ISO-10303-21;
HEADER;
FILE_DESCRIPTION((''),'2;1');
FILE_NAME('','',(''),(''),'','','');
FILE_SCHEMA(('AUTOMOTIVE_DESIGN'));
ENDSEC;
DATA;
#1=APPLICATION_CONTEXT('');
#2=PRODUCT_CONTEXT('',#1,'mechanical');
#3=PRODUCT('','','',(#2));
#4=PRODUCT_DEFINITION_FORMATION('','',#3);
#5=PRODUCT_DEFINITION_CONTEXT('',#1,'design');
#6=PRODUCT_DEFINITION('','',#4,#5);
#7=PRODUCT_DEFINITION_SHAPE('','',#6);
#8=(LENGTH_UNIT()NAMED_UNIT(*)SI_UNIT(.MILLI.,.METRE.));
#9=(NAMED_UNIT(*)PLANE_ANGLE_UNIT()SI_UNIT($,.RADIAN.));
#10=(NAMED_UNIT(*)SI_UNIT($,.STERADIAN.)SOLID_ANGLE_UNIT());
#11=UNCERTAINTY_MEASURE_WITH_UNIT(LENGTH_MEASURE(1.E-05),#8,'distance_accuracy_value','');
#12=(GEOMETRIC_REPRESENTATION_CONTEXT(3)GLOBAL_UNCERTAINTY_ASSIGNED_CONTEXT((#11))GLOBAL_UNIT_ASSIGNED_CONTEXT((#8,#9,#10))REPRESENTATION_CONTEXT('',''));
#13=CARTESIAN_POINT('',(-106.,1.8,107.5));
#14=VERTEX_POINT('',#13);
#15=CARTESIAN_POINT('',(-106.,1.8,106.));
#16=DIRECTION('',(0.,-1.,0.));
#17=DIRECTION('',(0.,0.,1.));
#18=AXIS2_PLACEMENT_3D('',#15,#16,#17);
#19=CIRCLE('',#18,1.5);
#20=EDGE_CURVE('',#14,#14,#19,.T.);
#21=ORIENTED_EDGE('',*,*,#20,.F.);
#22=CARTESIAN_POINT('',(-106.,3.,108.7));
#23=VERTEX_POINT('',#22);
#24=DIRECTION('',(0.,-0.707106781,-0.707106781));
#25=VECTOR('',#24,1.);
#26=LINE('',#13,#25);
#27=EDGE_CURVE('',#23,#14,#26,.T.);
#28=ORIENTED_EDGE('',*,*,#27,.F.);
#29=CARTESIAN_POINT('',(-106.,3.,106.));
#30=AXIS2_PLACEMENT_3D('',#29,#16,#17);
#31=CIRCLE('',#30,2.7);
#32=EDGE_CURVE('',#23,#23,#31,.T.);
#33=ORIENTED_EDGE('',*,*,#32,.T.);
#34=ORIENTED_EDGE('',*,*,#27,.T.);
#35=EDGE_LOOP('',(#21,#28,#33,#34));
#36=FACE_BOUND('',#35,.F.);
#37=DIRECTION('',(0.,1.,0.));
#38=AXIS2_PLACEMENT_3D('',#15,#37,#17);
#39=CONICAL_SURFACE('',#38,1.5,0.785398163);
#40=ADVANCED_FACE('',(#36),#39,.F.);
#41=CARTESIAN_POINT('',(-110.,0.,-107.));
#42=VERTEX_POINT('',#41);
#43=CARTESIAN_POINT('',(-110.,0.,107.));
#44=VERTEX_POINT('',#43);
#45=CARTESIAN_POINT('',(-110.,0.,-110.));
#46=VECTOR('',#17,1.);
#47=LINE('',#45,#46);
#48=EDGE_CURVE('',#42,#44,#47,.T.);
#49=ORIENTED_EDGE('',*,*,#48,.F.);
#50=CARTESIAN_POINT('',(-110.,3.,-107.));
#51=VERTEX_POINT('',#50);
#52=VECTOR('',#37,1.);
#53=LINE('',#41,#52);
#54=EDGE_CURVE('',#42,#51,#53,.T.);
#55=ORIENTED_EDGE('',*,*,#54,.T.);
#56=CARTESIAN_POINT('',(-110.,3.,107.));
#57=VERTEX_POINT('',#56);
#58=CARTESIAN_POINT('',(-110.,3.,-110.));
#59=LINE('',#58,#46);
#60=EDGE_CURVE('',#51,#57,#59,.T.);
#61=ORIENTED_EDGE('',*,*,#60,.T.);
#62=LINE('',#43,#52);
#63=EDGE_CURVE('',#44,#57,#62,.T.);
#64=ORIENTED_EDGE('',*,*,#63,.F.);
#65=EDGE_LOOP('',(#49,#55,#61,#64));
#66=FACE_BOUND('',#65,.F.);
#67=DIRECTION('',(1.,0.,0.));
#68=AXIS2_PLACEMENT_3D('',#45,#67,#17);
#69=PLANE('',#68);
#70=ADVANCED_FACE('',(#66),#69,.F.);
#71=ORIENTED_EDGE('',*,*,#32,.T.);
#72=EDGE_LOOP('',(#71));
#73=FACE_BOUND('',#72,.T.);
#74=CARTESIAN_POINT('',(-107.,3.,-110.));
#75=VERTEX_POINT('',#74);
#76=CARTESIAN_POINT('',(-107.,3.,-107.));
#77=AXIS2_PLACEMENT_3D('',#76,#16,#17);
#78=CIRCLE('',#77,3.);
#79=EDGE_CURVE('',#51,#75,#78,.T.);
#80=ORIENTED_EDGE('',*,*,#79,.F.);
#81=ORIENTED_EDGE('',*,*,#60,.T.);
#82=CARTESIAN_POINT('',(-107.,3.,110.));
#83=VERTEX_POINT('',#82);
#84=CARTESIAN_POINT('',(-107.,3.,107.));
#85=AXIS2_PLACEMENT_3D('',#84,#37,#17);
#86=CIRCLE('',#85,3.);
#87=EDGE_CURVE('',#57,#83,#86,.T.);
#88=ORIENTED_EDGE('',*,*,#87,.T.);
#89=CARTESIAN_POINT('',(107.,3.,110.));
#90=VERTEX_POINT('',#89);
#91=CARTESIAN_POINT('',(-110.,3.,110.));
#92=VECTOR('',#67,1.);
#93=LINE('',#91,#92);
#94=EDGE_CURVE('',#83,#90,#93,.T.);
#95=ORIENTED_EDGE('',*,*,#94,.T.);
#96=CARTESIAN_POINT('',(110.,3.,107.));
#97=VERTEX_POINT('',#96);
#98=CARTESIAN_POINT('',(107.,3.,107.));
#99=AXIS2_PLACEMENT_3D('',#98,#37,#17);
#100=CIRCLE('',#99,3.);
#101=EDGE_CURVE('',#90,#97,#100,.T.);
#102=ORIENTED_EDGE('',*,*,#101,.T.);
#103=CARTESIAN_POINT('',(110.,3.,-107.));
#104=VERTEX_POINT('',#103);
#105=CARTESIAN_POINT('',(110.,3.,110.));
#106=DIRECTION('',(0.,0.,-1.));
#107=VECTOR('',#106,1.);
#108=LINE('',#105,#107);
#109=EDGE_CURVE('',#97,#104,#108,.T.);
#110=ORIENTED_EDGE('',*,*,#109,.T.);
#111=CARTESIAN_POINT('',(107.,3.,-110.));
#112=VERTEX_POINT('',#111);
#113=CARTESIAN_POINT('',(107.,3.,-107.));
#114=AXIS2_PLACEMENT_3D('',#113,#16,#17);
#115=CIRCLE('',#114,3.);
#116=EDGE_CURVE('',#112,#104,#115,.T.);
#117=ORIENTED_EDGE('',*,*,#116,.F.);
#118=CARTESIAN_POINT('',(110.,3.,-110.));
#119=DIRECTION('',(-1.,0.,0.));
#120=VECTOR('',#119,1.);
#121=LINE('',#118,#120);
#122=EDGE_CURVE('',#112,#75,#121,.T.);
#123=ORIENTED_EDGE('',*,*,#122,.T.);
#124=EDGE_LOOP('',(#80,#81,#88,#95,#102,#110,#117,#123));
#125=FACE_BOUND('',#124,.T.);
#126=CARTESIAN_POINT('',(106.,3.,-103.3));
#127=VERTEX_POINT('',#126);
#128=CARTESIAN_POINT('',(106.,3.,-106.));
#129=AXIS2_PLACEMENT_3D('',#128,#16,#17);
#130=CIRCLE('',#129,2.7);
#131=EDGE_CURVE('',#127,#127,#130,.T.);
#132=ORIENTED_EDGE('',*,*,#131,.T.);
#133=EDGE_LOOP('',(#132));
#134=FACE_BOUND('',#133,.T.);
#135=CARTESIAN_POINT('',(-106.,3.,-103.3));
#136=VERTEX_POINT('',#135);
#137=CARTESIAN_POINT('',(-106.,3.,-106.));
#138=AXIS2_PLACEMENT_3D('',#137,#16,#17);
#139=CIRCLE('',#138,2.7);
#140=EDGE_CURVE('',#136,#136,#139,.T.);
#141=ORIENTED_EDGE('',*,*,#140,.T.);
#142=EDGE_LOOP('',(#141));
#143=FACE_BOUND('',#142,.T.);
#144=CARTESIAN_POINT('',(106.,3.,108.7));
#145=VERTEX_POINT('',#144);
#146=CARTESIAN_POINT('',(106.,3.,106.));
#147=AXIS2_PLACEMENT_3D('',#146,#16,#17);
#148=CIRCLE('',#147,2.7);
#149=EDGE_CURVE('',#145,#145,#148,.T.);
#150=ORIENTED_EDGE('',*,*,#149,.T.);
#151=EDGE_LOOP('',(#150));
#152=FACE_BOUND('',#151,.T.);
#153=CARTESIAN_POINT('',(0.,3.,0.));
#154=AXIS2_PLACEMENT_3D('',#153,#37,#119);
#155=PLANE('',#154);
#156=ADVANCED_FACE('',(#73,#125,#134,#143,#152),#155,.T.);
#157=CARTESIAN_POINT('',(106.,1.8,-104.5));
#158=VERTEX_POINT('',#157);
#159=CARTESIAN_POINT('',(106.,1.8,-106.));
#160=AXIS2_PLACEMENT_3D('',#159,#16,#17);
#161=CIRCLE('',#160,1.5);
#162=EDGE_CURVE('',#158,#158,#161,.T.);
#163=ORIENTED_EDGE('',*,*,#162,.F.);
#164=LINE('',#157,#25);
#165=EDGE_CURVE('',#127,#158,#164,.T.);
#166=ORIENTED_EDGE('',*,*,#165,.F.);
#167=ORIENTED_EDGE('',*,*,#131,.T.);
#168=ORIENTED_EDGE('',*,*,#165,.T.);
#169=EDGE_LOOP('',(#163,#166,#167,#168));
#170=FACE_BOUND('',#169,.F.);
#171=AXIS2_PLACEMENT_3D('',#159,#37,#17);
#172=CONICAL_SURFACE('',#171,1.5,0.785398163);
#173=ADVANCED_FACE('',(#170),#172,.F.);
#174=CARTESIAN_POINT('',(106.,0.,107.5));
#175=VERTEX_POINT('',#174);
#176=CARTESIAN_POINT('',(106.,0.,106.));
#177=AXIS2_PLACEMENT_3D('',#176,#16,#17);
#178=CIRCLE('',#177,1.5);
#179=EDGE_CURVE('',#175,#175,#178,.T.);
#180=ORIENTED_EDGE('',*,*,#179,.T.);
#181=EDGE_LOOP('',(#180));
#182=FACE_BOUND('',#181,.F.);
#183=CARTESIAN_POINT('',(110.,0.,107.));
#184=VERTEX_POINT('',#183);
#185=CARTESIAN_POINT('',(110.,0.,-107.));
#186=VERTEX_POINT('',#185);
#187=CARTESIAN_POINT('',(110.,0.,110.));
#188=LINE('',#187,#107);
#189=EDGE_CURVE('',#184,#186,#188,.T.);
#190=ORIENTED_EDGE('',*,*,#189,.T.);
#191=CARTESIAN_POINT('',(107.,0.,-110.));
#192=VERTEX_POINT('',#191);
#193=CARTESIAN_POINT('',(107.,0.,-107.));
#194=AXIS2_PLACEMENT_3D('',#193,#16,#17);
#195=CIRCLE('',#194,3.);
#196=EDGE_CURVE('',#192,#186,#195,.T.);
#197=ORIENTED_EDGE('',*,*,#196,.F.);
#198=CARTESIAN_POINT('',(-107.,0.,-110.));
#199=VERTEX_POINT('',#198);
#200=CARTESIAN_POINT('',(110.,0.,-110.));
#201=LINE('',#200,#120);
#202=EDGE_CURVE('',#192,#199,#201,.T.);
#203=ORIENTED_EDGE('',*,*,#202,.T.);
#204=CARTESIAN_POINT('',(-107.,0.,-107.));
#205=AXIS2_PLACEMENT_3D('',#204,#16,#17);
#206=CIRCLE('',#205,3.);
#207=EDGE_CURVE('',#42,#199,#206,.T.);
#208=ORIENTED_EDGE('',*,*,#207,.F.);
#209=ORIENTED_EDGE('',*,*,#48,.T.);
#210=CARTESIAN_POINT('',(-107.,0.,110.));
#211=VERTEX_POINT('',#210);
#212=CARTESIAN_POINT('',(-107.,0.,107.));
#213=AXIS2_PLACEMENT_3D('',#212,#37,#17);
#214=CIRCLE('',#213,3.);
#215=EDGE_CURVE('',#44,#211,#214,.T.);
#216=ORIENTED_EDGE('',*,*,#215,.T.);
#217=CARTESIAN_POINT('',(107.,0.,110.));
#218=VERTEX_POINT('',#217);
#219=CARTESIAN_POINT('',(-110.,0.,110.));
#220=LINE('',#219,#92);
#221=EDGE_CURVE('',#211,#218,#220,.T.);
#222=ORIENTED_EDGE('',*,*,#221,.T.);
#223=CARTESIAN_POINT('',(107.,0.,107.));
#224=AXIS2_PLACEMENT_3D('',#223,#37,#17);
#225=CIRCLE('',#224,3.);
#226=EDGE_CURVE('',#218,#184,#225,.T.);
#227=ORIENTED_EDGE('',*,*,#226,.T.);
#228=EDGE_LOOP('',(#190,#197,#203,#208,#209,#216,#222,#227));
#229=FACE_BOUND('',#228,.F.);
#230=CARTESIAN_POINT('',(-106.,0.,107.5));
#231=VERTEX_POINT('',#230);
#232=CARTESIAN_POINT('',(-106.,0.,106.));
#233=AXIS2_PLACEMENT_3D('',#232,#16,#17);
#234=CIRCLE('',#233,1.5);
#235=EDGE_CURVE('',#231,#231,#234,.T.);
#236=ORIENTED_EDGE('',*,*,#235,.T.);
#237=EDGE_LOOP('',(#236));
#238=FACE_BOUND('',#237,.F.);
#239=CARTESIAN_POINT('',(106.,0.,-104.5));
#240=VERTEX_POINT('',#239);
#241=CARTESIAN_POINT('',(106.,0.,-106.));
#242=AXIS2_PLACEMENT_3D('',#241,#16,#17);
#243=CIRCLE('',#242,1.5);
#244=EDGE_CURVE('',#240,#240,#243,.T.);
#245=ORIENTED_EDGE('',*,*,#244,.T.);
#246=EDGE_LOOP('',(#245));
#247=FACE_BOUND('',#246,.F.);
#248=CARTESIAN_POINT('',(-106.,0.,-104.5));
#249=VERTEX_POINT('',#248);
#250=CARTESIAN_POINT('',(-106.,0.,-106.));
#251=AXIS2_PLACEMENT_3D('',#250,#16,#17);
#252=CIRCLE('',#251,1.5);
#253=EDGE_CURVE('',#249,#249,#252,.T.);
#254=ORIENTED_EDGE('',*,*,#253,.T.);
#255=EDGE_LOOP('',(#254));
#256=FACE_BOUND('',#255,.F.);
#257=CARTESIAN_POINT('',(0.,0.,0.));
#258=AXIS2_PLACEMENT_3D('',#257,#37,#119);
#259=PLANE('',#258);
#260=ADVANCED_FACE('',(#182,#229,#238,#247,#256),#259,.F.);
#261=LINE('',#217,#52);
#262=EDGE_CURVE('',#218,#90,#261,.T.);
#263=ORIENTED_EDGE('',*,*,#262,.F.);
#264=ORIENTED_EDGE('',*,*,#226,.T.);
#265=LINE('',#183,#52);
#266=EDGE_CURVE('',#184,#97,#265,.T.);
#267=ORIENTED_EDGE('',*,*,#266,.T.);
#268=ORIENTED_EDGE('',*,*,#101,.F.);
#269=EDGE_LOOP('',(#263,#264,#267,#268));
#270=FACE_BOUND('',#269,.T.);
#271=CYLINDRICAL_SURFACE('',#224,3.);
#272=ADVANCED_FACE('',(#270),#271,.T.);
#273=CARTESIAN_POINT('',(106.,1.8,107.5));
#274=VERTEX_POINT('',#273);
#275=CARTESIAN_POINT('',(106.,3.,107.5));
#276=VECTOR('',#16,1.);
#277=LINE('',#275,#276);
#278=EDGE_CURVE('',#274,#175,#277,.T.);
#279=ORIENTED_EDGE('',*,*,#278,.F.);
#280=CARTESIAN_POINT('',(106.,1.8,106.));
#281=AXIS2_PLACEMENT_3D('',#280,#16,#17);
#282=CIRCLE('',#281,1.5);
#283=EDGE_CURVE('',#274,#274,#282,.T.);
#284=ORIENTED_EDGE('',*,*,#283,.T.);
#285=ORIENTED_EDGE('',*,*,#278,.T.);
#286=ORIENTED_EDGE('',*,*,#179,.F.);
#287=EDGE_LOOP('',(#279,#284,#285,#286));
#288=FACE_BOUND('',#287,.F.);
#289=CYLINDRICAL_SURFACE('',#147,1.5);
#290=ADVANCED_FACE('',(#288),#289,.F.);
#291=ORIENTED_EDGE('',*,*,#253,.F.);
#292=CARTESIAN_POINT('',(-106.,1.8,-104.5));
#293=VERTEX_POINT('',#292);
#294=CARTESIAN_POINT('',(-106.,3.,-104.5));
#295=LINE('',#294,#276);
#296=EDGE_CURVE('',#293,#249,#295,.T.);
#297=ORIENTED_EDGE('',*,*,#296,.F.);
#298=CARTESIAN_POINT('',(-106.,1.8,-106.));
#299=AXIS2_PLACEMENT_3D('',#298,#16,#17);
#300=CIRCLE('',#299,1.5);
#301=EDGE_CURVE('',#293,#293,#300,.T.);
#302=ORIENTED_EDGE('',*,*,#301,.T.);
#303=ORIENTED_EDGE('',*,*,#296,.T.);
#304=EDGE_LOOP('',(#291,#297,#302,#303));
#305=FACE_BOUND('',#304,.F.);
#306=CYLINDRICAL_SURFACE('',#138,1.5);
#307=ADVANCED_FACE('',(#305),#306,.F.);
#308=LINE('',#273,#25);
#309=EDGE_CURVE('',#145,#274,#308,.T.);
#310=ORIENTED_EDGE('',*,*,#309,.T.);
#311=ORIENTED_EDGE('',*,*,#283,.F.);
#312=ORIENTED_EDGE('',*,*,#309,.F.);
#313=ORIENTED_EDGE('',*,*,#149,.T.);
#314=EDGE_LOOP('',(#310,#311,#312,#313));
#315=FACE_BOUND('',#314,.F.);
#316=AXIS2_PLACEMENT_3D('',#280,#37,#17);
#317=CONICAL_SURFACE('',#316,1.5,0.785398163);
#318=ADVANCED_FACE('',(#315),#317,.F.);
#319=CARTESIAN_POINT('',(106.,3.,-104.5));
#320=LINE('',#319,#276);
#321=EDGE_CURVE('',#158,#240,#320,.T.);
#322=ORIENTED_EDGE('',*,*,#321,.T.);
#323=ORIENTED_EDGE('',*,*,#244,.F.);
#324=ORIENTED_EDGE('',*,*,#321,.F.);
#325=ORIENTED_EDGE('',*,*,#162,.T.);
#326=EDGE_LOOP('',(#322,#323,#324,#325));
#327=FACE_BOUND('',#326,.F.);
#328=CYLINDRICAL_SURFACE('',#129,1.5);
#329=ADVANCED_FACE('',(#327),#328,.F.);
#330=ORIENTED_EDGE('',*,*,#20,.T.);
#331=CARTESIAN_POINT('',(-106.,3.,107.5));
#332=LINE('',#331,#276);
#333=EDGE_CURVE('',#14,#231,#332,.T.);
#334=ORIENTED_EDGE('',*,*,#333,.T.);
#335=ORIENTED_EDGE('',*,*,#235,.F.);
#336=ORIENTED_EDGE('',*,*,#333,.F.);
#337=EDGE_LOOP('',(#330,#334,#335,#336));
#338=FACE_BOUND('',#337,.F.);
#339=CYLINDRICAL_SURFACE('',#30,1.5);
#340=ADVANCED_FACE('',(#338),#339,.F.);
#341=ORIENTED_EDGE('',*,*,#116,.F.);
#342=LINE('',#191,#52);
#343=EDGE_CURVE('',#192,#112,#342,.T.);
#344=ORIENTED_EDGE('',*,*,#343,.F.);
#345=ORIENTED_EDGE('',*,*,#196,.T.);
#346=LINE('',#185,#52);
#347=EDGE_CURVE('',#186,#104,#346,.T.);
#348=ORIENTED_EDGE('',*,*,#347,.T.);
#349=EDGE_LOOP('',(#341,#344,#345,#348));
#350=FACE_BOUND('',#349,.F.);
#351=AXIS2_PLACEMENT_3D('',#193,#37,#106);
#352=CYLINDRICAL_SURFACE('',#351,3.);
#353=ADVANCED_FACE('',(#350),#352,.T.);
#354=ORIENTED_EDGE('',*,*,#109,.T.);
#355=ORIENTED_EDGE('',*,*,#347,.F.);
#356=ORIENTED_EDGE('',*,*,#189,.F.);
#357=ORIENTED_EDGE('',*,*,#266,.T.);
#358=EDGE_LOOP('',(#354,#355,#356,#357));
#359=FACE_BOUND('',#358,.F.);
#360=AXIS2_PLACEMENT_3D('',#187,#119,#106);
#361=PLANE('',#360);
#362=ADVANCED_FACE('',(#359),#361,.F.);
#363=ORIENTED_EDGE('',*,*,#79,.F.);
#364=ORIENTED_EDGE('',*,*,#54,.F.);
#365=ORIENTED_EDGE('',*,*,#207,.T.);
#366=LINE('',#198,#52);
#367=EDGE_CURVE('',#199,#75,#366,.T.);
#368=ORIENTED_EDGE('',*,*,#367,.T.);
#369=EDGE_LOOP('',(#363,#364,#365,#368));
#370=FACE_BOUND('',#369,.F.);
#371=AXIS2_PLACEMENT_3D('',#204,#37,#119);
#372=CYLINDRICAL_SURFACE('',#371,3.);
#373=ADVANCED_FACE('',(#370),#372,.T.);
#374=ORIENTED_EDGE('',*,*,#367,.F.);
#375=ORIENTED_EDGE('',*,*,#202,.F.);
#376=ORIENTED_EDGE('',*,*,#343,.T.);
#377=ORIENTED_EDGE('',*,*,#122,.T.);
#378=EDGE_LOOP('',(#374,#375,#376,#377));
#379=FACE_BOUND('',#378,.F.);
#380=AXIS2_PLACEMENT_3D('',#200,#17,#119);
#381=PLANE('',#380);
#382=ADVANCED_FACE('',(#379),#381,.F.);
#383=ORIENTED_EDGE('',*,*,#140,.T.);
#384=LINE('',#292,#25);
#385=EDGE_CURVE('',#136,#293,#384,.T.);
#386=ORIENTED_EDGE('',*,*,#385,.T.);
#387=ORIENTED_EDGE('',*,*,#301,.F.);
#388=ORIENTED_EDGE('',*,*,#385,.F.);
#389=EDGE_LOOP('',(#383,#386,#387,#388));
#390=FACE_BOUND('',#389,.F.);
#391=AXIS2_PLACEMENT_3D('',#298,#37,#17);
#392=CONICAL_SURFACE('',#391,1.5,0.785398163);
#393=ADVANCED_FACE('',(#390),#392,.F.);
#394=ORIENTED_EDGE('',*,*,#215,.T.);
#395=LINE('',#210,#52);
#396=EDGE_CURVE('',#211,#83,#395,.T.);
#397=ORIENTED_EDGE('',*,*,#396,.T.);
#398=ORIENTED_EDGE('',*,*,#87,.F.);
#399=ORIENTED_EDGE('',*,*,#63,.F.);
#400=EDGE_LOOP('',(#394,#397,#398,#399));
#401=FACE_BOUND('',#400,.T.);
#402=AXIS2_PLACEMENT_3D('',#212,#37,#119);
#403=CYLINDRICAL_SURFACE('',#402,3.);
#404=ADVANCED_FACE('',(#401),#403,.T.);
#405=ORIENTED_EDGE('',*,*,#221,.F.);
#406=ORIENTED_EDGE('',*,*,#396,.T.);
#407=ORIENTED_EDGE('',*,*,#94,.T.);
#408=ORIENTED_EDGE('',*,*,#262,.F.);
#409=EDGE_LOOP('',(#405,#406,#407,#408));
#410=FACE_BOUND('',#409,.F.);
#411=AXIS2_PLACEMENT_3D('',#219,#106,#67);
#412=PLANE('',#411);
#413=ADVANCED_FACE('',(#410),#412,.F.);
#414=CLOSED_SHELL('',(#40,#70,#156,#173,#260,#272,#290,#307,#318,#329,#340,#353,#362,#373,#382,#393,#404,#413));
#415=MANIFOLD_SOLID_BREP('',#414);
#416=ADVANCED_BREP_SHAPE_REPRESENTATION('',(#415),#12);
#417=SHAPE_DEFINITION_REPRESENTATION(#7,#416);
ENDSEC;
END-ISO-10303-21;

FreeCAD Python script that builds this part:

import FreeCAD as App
import Part
import Sketcher
Q = App.Units.Quantity


def edges_at(feature, points):
    """Names of the edges that pass closest to the given points."""
    edges = feature.Shape.Edges
    near = lambda p: min(range(len(edges)), key=lambda i: edges[i].distToShape(Part.Vertex(*p))[0])
    return sorted({f"Edge{near(p) + 1}" for p in points})

doc = App.newDocument("Part")
body = doc.addObject("PartDesign::Body", "Body")

sketch1 = body.newObject("Sketcher::SketchObject", "Sketch")
sketch1.AttachmentSupport = (doc.getObject("XZ_Plane"), [""])
sketch1.MapMode = "FlatFace"
sketch1.addGeometry([
    Part.LineSegment(App.Vector(-110, -110, 0), App.Vector(-110, 110, 0)),
    Part.LineSegment(App.Vector(-110, 110, 0), App.Vector(110, 110, 0)),
    Part.LineSegment(App.Vector(110, 110, 0), App.Vector(110, -110, 0)),
    Part.LineSegment(App.Vector(110, -110, 0), App.Vector(-110, -110, 0)),
], False)
sketch1.addConstraint([
    Sketcher.Constraint("Coincident", 0, 2, 1, 1),
    Sketcher.Constraint("Coincident", 1, 2, 2, 1),
    Sketcher.Constraint("Coincident", 2, 2, 3, 1),
    Sketcher.Constraint("Coincident", 3, 2, 0, 1),
    Sketcher.Constraint("Vertical", 0),
    Sketcher.Constraint("Horizontal", 1),
    Sketcher.Constraint("Vertical", 2),
    Sketcher.Constraint("Horizontal", 3),
    Sketcher.Constraint("Symmetric", 0, 2, 2, 2, -1, 1),
    Sketcher.Constraint("Equal", 3, 0),
    Sketcher.Constraint("DistanceX", 1, 1, 1, 2, Q("220 mm")),
])
pad1 = body.newObject("PartDesign::Pad", "Pad")
pad1.Profile = sketch1
pad1.Length = 3
pad1.Reversed = True

sketch2 = body.newObject("Sketcher::SketchObject", "Sketch001")
sketch2.AttachmentSupport = (doc.getObject("XZ_Plane"), [""])
sketch2.MapMode = "FlatFace"
sketch2.AttachmentOffset = App.Placement(App.Vector(0, 0, -3), App.Rotation())
sketch2.addGeometry([
    Part.Circle(App.Vector(-106, 106, 0), App.Vector(0, 0, 1), 1.5),
    Part.Circle(App.Vector(-106, -106, 0), App.Vector(0, 0, 1), 1.5),
    Part.Circle(App.Vector(106, -106, 0), App.Vector(0, 0, 1), 1.5),
    Part.Circle(App.Vector(106, 106, 0), App.Vector(0, 0, 1), 1.5),
], False)
sketch2.addConstraint([
    Sketcher.Constraint("Equal", 0, 1),
    Sketcher.Constraint("Equal", 1, 2),
    Sketcher.Constraint("Equal", 2, 3),
    Sketcher.Constraint("Symmetric", 0, 3, 2, 3, -1, 1),
    Sketcher.Constraint("Symmetric", 1, 3, 3, 3, -1, 1),
    Sketcher.Constraint("Symmetric", 1, 3, 2, 3, -2),
    Sketcher.Constraint("Diameter", 0, Q("3 mm")),
    Sketcher.Constraint("DistanceX", 0, 3, -1, 1, Q("106 mm")),
    Sketcher.Constraint("DistanceY", -1, 1, 0, 3, Q("106 mm")),
])
doc.recompute()
hole = body.newObject("PartDesign::Hole", "Hole")
hole.Profile = sketch2
hole.ThreadType = "None"
hole.Diameter = 3
hole.DepthType = "ThroughAll"
hole.Reversed = True
doc.recompute()

fillet = body.newObject("PartDesign::Fillet", "Fillet")
fillet.Base = (hole, edges_at(hole, [
    (-110, 1.5, 110),
    (110, 1.5, 110),
    (110, 1.5, -110),
    (-110, 1.5, -110),
]))
fillet.Radius = 3
doc.recompute()

chamfer = body.newObject("PartDesign::Chamfer", "Chamfer")
chamfer.Base = (fillet, edges_at(fillet, [
    (106, 3, -107.5),
    (-106, 3, -107.5),
    (106, 3, 104.5),
    (-106, 3, 104.5),
]))
chamfer.Size = 1.2

doc.recompute()
